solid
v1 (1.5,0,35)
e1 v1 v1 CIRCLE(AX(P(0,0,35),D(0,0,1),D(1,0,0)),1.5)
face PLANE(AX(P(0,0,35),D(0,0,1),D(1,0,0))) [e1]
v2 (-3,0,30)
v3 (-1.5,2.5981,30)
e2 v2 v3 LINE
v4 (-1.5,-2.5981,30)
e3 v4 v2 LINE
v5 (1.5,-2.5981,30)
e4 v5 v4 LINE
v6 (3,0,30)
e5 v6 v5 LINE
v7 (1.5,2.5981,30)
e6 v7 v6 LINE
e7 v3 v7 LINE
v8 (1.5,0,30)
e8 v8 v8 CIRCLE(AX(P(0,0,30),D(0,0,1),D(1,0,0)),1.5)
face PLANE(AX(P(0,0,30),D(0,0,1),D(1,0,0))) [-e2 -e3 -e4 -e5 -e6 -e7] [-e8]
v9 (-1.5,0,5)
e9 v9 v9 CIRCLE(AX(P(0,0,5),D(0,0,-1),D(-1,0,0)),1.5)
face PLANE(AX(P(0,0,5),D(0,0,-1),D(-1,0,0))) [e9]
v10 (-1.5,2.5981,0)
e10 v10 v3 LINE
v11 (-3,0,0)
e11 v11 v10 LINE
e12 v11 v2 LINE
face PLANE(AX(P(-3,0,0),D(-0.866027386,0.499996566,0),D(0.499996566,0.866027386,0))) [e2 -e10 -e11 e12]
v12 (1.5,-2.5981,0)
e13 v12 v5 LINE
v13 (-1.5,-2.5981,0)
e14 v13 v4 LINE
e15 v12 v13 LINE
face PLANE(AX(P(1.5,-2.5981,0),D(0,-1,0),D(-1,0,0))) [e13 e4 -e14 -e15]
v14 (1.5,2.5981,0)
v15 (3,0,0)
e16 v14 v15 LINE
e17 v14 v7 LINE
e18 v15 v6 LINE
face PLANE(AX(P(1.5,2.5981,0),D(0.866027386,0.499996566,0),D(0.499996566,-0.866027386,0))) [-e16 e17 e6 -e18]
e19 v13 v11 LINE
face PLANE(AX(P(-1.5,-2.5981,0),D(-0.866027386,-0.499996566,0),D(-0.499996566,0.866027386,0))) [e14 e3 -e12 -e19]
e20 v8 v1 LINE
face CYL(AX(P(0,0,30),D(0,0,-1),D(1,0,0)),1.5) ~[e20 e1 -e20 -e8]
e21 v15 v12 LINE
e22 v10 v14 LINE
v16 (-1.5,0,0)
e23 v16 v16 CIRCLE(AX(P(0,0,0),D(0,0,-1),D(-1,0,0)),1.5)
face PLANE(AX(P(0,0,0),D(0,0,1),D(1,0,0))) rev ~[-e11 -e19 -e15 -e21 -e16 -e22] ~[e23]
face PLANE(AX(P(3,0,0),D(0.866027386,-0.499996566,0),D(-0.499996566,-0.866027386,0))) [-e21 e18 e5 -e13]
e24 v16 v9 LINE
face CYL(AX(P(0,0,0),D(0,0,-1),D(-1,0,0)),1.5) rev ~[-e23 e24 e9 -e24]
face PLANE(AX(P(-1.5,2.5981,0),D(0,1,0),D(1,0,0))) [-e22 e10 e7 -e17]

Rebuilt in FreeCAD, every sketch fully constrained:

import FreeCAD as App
import Part
import Sketcher
from FreeCAD import Vector
Q = App.Units.Quantity

doc = App.newDocument("Part")
body = doc.addObject("PartDesign::Body", "Body")

sketch1 = doc.addObject("Sketcher::SketchObject", "Sketch")
body.addObject(sketch1)
sketch1.AttachmentSupport = (doc.XY_Plane, [""])
sketch1.MapMode = "FlatFace"
sketch1.addGeometry(Part.LineSegment(Vector(-1.5, 2.6, 0), Vector(-3, 0, 0)), False)
sketch1.addGeometry(Part.LineSegment(Vector(-3, 0, 0), Vector(-1.5, -2.6, 0)), False)
sketch1.addGeometry(Part.LineSegment(Vector(-1.5, -2.6, 0), Vector(1.5, -2.6, 0)), False)
sketch1.addGeometry(Part.LineSegment(Vector(1.5, -2.6, 0), Vector(3, 0, 0)), False)
sketch1.addGeometry(Part.LineSegment(Vector(3, 0, 0), Vector(1.5, 2.6, 0)), False)
sketch1.addGeometry(Part.LineSegment(Vector(1.5, 2.6, 0), Vector(-1.5, 2.6, 0)), False)
sketch1.addConstraint(Sketcher.Constraint("Coincident", 0, 2, 1, 1))
sketch1.addConstraint(Sketcher.Constraint("Coincident", 1, 2, 2, 1))
sketch1.addConstraint(Sketcher.Constraint("Coincident", 2, 2, 3, 1))
sketch1.addConstraint(Sketcher.Constraint("Coincident", 3, 2, 4, 1))
sketch1.addConstraint(Sketcher.Constraint("Coincident", 4, 2, 5, 1))
sketch1.addConstraint(Sketcher.Constraint("Coincident", 5, 2, 0, 1))
sketch1.addConstraint(Sketcher.Constraint("Horizontal", 2))
sketch1.addConstraint(Sketcher.Constraint("Horizontal", 5))
sketch1.addConstraint(Sketcher.Constraint("Symmetric", 0, 2, 3, 2, -1, 1))
sketch1.addConstraint(Sketcher.Constraint("Symmetric", 1, 2, 4, 2, -1, 1))
sketch1.addConstraint(Sketcher.Constraint("PointOnObject", 0, 2, -1))
sketch1.addConstraint(Sketcher.Constraint("Parallel", 0, 3))
sketch1.addConstraint(Sketcher.Constraint("Vertical", 2, 2, 4, 2))
sketch1.addConstraint(Sketcher.Constraint("DistanceX", 0, 2, 3, 2, Q("6 mm")))
sketch1.addConstraint(Sketcher.Constraint("DistanceX", 2, 1, 2, 2, Q("3 mm")))
sketch1.addConstraint(Sketcher.Constraint("Angle", 0, Q("-119.9998 deg")))
pad1 = doc.addObject("PartDesign::Pad", "Pad")
body.addObject(pad1)
pad1.Profile = sketch1
pad1.Length = 30

sketch2 = doc.addObject("Sketcher::SketchObject", "Sketch001")
body.addObject(sketch2)
sketch2.AttachmentSupport = (doc.XY_Plane, [""])
sketch2.MapMode = "FlatFace"
sketch2.AttachmentOffset = App.Placement(Vector(0, 0, 30), App.Rotation())
sketch2.addGeometry(Part.Circle(Vector(0, 0, 0), Vector(0, 0, 1), 1.5), False)
sketch2.addConstraint(Sketcher.Constraint("Coincident", 0, 3, -1, 1))
sketch2.addConstraint(Sketcher.Constraint("Diameter", 0, Q("3 mm")))
pad2 = doc.addObject("PartDesign::Pad", "Pad001")
body.addObject(pad2)
pad2.Profile = sketch2
pad2.Length = 5

sketch3 = doc.addObject("Sketcher::SketchObject", "Sketch002")
body.addObject(sketch3)
sketch3.AttachmentSupport = (doc.XY_Plane, [""])
sketch3.MapMode = "FlatFace"
sketch3.addGeometry(Part.Circle(Vector(0, 0, 0), Vector(0, 0, 1), 1.5), False)
sketch3.addConstraint(Sketcher.Constraint("Coincident", 0, 3, -1, 1))
sketch3.addConstraint(Sketcher.Constraint("Diameter", 0, Q("3 mm")))
pocket1 = doc.addObject("PartDesign::Pocket", "Pocket")
body.addObject(pocket1)
pocket1.Profile = sketch3
pocket1.Length = 5
pocket1.Reversed = True

doc.recompute()
